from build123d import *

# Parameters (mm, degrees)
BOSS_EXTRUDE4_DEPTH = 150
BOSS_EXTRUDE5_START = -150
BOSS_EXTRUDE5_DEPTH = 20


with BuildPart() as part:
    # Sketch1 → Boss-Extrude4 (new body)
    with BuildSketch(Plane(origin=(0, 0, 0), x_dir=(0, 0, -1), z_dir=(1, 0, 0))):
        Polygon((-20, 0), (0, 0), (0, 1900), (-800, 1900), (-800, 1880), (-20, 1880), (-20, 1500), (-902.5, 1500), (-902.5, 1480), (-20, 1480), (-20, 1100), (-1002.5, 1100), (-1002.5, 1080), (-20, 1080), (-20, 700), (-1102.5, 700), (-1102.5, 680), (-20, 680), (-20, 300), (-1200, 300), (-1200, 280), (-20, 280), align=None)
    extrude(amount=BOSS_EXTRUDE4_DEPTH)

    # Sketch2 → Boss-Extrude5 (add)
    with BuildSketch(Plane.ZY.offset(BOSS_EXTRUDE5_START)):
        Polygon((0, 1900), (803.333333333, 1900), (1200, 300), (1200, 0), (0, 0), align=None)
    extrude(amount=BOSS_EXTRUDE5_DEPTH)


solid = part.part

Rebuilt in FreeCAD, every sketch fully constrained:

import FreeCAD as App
import Part
import Sketcher
from FreeCAD import Vector

doc = App.newDocument("Part")
body = doc.addObject("PartDesign::Body", "Body")

sketch1 = body.newObject("Sketcher::SketchObject", "Sketch")
sketch1.AttachmentSupport = (doc.getObject("YZ_Plane"), [""])
sketch1.MapMode = "FlatFace"
sketch1.addGeometry(Part.LineSegment(Vector(0, 20, 0), Vector(0, 0, 0)), False)
sketch1.addGeometry(Part.LineSegment(Vector(0, 0, 0), Vector(1900, 0, 0)), False)
sketch1.addGeometry(Part.LineSegment(Vector(1900, 0, 0), Vector(1900, 800, 0)), False)
sketch1.addGeometry(Part.LineSegment(Vector(1900, 800, 0), Vector(1880, 800, 0)), False)
sketch1.addGeometry(Part.LineSegment(Vector(1880, 800, 0), Vector(1880, 20, 0)), False)
sketch1.addGeometry(Part.LineSegment(Vector(1880, 20, 0), Vector(1500, 20, 0)), False)
sketch1.addGeometry(Part.LineSegment(Vector(1500, 20, 0), Vector(1500, 902, 0)), False)
sketch1.addGeometry(Part.LineSegment(Vector(1500, 902, 0), Vector(1480, 902, 0)), False)
sketch1.addGeometry(Part.LineSegment(Vector(1480, 902, 0), Vector(1480, 20, 0)), False)
sketch1.addGeometry(Part.LineSegment(Vector(1480, 20, 0), Vector(1100, 20, 0)), False)
sketch1.addGeometry(Part.LineSegment(Vector(1100, 20, 0), Vector(1100, 1002, 0)), False)
sketch1.addGeometry(Part.LineSegment(Vector(1100, 1002, 0), Vector(1080, 1002, 0)), False)
sketch1.addGeometry(Part.LineSegment(Vector(1080, 1002, 0), Vector(1080, 20, 0)), False)
sketch1.addGeometry(Part.LineSegment(Vector(1080, 20, 0), Vector(700, 20, 0)), False)
sketch1.addGeometry(Part.LineSegment(Vector(700, 20, 0), Vector(700, 1102, 0)), False)
sketch1.addGeometry(Part.LineSegment(Vector(700, 1102, 0), Vector(680, 1102, 0)), False)
sketch1.addGeometry(Part.LineSegment(Vector(680, 1102, 0), Vector(680, 20, 0)), False)
sketch1.addGeometry(Part.LineSegment(Vector(680, 20, 0), Vector(300, 20, 0)), False)
sketch1.addGeometry(Part.LineSegment(Vector(300, 20, 0), Vector(300, 1200, 0)), False)
sketch1.addGeometry(Part.LineSegment(Vector(300, 1200, 0), Vector(280, 1200, 0)), False)
sketch1.addGeometry(Part.LineSegment(Vector(280, 1200, 0), Vector(280, 20, 0)), False)
sketch1.addGeometry(Part.LineSegment(Vector(280, 20, 0), Vector(0, 20, 0)), False)
sketch1.addConstraint(Sketcher.Constraint("Coincident", 0, 2, 1, 1))
sketch1.addConstraint(Sketcher.Constraint("Coincident", 1, 2, 2, 1))
sketch1.addConstraint(Sketcher.Constraint("Coincident", 2, 2, 3, 1))
sketch1.addConstraint(Sketcher.Constraint("Coincident", 3, 2, 4, 1))
sketch1.addConstraint(Sketcher.Constraint("Coincident", 4, 2, 5, 1))
sketch1.addConstraint(Sketcher.Constraint("Coincident", 5, 2, 6, 1))
sketch1.addConstraint(Sketcher.Constraint("Coincident", 6, 2, 7, 1))
sketch1.addConstraint(Sketcher.Constraint("Coincident", 7, 2, 8, 1))
sketch1.addConstraint(Sketcher.Constraint("Coincident", 8, 2, 9, 1))
sketch1.addConstraint(Sketcher.Constraint("Coincident", 9, 2, 10, 1))
sketch1.addConstraint(Sketcher.Constraint("Coincident", 10, 2, 11, 1))
sketch1.addConstraint(Sketcher.Constraint("Coincident", 11, 2, 12, 1))
sketch1.addConstraint(Sketcher.Constraint("Coincident", 12, 2, 13, 1))
sketch1.addConstraint(Sketcher.Constraint("Coincident", 13, 2, 14, 1))
sketch1.addConstraint(Sketcher.Constraint("Coincident", 14, 2, 15, 1))
sketch1.addConstraint(Sketcher.Constraint("Coincident", 15, 2, 16, 1))
sketch1.addConstraint(Sketcher.Constraint("Coincident", 16, 2, 17, 1))
sketch1.addConstraint(Sketcher.Constraint("Coincident", 17, 2, 18, 1))
sketch1.addConstraint(Sketcher.Constraint("Coincident", 18, 2, 19, 1))
sketch1.addConstraint(Sketcher.Constraint("Coincident", 19, 2, 20, 1))
sketch1.addConstraint(Sketcher.Constraint("Coincident", 20, 2, 21, 1))
sketch1.addConstraint(Sketcher.Constraint("Coincident", 21, 2, 0, 1))
sketch1.addConstraint(Sketcher.Constraint("Vertical", 0))
sketch1.addConstraint(Sketcher.Constraint("Horizontal", 1))
sketch1.addConstraint(Sketcher.Constraint("Vertical", 2))
sketch1.addConstraint(Sketcher.Constraint("Horizontal", 3))
sketch1.addConstraint(Sketcher.Constraint("Vertical", 4))
sketch1.addConstraint(Sketcher.Constraint("Horizontal", 5))
sketch1.addConstraint(Sketcher.Constraint("Vertical", 6))
sketch1.addConstraint(Sketcher.Constraint("Horizontal", 7))
sketch1.addConstraint(Sketcher.Constraint("Vertical", 8))
sketch1.addConstraint(Sketcher.Constraint("Horizontal", 9))
sketch1.addConstraint(Sketcher.Constraint("Vertical", 10))
sketch1.addConstraint(Sketcher.Constraint("Horizontal", 11))
sketch1.addConstraint(Sketcher.Constraint("Vertical", 12))
sketch1.addConstraint(Sketcher.Constraint("Horizontal", 13))
sketch1.addConstraint(Sketcher.Constraint("Vertical", 14))
sketch1.addConstraint(Sketcher.Constraint("Horizontal", 15))
sketch1.addConstraint(Sketcher.Constraint("Vertical", 16))
sketch1.addConstraint(Sketcher.Constraint("Horizontal", 17))
sketch1.addConstraint(Sketcher.Constraint("Vertical", 18))
sketch1.addConstraint(Sketcher.Constraint("Horizontal", 19))
sketch1.addConstraint(Sketcher.Constraint("Vertical", 20))
sketch1.addConstraint(Sketcher.Constraint("Horizontal", 21))
sketch1.addConstraint(Sketcher.Constraint("Coincident", 0, 2, -1, 1))
sketch1.addConstraint(Sketcher.Constraint("Horizontal", 5, 2, 8, 2))
sketch1.addConstraint(Sketcher.Constraint("Horizontal", 9, 2, 12, 2))
sketch1.addConstraint(Sketcher.Constraint("Horizontal", 13, 2, 16, 2))
sketch1.addConstraint(Sketcher.Constraint("Horizontal", 17, 2, 20, 2))
sketch1.addConstraint(Sketcher.Constraint("Equal", 3, 7))
sketch1.addConstraint(Sketcher.Constraint("Equal", 5, 9))
sketch1.addConstraint(Sketcher.Constraint("Equal", 7, 11))
sketch1.addConstraint(Sketcher.Constraint("Equal", 9, 13))
sketch1.addConstraint(Sketcher.Constraint("Equal", 11, 15))
sketch1.addConstraint(Sketcher.Constraint("Equal", 13, 17))
sketch1.addConstraint(Sketcher.Constraint("Equal", 15, 19))
sketch1.addConstraint(Sketcher.Constraint("Equal", 19, 0))
sketch1.addConstraint(Sketcher.Constraint("DistanceX", 1, 1, 1, 2, 1900.0))
sketch1.addConstraint(Sketcher.Constraint("DistanceX", 3, 2, 3, 1, 20.0))
sketch1.addConstraint(Sketcher.Constraint("DistanceX", 5, 2, 5, 1, 380.0))
sketch1.addConstraint(Sketcher.Constraint("DistanceY", 2, 1, 2, 2, 800.0))
sketch1.addConstraint(Sketcher.Constraint("DistanceY", 18, 1, 18, 2, 1180.0))
sketch1.addConstraint(Sketcher.Constraint("DistanceY", 6, 1, 6, 2, 882.5))
sketch1.addConstraint(Sketcher.Constraint("DistanceY", 10, 1, 10, 2, 982.5))
sketch1.addConstraint(Sketcher.Constraint("DistanceY", 14, 1, 14, 2, 1082.5))
pad1 = body.newObject("PartDesign::Pad", "Pad")
pad1.Profile = sketch1
pad1.Length = 150

sketch2 = body.newObject("Sketcher::SketchObject", "Sketch001")
sketch2.AttachmentSupport = (doc.getObject("YZ_Plane"), [""])
sketch2.MapMode = "FlatFace"
sketch2.AttachmentOffset = App.Placement(Vector(0, 0, 150), App.Rotation())
sketch2.addGeometry(Part.LineSegment(Vector(1900, 803, 0), Vector(1900, 0, 0)), False)
sketch2.addGeometry(Part.LineSegment(Vector(1900, 0, 0), Vector(0, 0, 0)), False)
sketch2.addGeometry(Part.LineSegment(Vector(0, 0, 0), Vector(0, 1200, 0)), False)
sketch2.addGeometry(Part.LineSegment(Vector(0, 1200, 0), Vector(300, 1200, 0)), False)
sketch2.addGeometry(Part.LineSegment(Vector(300, 1200, 0), Vector(1900, 803, 0)), False)
sketch2.addConstraint(Sketcher.Constraint("Coincident", 0, 2, 1, 1))
sketch2.addConstraint(Sketcher.Constraint("Coincident", 1, 2, 2, 1))
sketch2.addConstraint(Sketcher.Constraint("Coincident", 2, 2, 3, 1))
sketch2.addConstraint(Sketcher.Constraint("Coincident", 3, 2, 4, 1))
sketch2.addConstraint(Sketcher.Constraint("Coincident", 4, 2, 0, 1))
sketch2.addConstraint(Sketcher.Constraint("Vertical", 0))
sketch2.addConstraint(Sketcher.Constraint("Horizontal", 1))
sketch2.addConstraint(Sketcher.Constraint("Vertical", 2))
sketch2.addConstraint(Sketcher.Constraint("Horizontal", 3))
sketch2.addConstraint(Sketcher.Constraint("Coincident", 1, 2, -1, 1))
sketch2.addConstraint(Sketcher.Constraint("DistanceX", 1, 2, 1, 1, 1900.0))
sketch2.addConstraint(Sketcher.Constraint("DistanceX", 3, 1, 3, 2, 300.0))
sketch2.addConstraint(Sketcher.Constraint("DistanceY", 2, 1, 2, 2, 1200.0))
sketch2.addConstraint(Sketcher.Constraint("Distance", 4, 1648.43697))
pad2 = body.newObject("PartDesign::Pad", "Pad001")
pad2.Profile = sketch2
pad2.Length = 20
pad2.Reversed = True

doc.recompute()
